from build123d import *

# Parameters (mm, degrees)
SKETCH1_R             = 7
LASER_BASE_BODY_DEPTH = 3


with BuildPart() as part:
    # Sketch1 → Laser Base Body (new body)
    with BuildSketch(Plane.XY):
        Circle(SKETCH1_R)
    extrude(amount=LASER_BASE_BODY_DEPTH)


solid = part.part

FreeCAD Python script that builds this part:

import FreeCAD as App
import Part
import Sketcher

doc = App.newDocument("Part")
body = doc.addObject("PartDesign::Body", "Body")

# Sketch on XY plane
sketch1 = body.newObject("Sketcher::SketchObject", "Sketch")
sketch1.AttachmentSupport = (doc.getObject("XY_Plane"), [""])
sketch1.MapMode = "FlatFace"
sketch1.addGeometry(Part.Circle(App.Vector(0, 0, 0), App.Vector(0, 0, 1), 7), False)
sketch1.addConstraint([
    Sketcher.Constraint("Coincident", 0, 3, -1, 1),
    Sketcher.Constraint("Diameter", 0, 14.0),
])
pad1 = body.newObject("PartDesign::Pad", "Pad")
pad1.Profile = sketch1
pad1.Length = 3

doc.recompute()
